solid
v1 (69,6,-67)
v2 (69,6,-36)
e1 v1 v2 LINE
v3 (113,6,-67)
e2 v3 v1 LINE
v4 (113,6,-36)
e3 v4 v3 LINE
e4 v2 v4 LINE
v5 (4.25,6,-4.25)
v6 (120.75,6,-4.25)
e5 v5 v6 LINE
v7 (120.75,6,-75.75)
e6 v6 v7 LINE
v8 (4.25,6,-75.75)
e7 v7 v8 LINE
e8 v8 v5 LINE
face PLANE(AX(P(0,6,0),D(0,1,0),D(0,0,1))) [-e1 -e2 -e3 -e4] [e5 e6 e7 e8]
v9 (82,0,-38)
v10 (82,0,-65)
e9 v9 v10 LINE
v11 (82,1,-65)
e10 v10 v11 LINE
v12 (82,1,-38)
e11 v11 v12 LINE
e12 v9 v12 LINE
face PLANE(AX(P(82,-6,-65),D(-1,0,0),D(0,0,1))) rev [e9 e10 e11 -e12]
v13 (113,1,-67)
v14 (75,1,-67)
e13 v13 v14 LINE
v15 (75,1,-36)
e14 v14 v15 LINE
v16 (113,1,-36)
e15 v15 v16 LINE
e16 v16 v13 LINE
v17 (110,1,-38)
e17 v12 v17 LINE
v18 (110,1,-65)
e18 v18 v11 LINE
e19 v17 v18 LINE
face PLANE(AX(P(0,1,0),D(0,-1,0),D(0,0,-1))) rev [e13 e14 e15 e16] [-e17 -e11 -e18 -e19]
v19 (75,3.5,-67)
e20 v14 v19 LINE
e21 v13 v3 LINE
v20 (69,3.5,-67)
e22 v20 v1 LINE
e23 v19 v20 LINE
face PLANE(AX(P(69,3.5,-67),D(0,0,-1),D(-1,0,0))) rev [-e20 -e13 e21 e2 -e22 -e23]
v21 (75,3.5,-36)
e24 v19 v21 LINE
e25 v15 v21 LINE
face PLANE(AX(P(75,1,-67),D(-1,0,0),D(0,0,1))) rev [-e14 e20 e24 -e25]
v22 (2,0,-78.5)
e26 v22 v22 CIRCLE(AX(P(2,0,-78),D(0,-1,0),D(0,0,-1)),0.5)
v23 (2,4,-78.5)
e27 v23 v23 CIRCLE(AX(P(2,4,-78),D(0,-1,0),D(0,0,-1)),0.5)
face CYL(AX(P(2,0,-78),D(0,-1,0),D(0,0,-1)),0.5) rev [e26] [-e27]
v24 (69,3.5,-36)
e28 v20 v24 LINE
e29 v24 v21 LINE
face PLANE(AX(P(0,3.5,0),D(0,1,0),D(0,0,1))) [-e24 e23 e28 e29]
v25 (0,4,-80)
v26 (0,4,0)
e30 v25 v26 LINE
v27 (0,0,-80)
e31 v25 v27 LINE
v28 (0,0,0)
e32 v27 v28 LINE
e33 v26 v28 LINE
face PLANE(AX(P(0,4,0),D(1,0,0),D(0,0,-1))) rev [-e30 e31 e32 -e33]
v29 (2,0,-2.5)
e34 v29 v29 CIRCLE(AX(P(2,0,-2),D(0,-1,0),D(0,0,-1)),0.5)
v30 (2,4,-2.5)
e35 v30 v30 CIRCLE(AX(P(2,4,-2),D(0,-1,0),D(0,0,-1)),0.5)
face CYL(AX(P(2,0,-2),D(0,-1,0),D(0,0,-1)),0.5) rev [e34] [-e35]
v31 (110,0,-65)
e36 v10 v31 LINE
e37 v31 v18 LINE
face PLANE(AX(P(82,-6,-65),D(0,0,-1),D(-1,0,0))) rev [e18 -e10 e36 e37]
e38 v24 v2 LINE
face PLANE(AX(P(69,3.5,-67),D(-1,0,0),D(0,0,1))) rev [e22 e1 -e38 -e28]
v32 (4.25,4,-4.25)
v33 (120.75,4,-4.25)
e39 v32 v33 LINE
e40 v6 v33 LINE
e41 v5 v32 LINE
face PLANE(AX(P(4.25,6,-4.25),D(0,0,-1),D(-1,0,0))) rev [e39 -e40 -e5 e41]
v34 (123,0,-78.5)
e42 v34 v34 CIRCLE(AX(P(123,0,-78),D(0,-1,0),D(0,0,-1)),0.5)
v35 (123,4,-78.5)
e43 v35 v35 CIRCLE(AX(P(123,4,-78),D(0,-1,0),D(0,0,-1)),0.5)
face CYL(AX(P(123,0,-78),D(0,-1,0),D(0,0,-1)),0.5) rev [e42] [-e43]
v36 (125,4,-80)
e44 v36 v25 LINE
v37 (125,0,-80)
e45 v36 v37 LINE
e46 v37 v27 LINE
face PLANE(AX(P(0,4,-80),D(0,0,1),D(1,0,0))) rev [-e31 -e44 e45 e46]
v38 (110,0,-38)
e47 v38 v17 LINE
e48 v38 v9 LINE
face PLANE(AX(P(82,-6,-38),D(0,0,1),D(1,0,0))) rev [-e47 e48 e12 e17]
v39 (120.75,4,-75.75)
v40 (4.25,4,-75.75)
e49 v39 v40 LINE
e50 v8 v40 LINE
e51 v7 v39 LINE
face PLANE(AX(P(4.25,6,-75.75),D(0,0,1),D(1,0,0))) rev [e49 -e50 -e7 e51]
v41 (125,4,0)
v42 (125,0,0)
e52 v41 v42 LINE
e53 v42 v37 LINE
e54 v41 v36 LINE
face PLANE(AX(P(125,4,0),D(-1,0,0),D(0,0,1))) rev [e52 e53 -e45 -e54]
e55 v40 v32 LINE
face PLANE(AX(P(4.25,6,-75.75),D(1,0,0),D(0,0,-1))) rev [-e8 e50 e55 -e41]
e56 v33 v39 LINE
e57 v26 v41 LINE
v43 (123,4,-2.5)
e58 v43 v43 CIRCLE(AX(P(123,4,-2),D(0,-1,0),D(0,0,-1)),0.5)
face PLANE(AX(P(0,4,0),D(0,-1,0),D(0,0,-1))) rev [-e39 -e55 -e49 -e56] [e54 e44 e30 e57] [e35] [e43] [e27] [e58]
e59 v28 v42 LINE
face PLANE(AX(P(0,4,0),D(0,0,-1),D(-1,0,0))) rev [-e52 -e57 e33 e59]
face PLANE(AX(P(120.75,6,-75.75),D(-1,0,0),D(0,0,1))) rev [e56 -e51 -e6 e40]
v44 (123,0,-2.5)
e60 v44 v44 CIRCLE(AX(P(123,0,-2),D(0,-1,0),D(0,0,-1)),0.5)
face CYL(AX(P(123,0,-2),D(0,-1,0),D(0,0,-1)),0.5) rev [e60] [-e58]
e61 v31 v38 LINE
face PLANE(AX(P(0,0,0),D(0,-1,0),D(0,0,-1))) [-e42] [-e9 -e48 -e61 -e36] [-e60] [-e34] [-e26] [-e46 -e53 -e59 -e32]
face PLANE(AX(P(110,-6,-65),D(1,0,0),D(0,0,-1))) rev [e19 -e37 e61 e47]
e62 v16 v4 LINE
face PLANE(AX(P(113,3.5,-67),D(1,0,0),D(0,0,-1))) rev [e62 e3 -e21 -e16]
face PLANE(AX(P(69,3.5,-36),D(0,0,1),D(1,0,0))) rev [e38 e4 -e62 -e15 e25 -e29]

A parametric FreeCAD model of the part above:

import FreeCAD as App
import Part
import Sketcher

V = App.Vector
Q = App.Units.Quantity


def add_polygon(sketch, points):
    """Adds a closed chain of lines whose ends are joined by coincident constraints."""
    first, n = sketch.GeometryCount, len(points)
    for a, b in zip(points, points[1:] + points[:1]):
        sketch.addGeometry(Part.LineSegment(App.Vector(*a, 0), App.Vector(*b, 0)), False)
    for i in range(n):
        sketch.addConstraint(Sketcher.Constraint("Coincident", first + i, 2, first + (i + 1) % n, 1))

doc = App.newDocument("Part")
body = doc.addObject("PartDesign::Body", "Body")

sketch1 = doc.addObject("Sketcher::SketchObject", "Sketch")
body.addObject(sketch1)
sketch1.AttachmentSupport = (doc.XZ_Plane, [""])
sketch1.MapMode = "FlatFace"
add_polygon(sketch1, [(0, -80), (0, 0), (125, 0), (125, -80)])
sketch1.addConstraint(Sketcher.Constraint("Vertical", 0))
sketch1.addConstraint(Sketcher.Constraint("Horizontal", 1))
sketch1.addConstraint(Sketcher.Constraint("Vertical", 2))
sketch1.addConstraint(Sketcher.Constraint("Horizontal", 3))
sketch1.addConstraint(Sketcher.Constraint("Coincident", 0, 2, -1, 1))
sketch1.addConstraint(Sketcher.Constraint("DistanceX", 1, 1, 1, 2, Q("125 mm")))
sketch1.addConstraint(Sketcher.Constraint("DistanceY", 0, 1, 0, 2, Q("80 mm")))
pad1 = doc.addObject("PartDesign::Pad", "Pad")
body.addObject(pad1)
pad1.Profile = sketch1
pad1.Length = 4
pad1.Reversed = True

sketch2 = doc.addObject("Sketcher::SketchObject", "Sketch001")
body.addObject(sketch2)
sketch2.AttachmentSupport = (doc.XZ_Plane, [""])
sketch2.MapMode = "FlatFace"
sketch2.AttachmentOffset = App.Placement(V(0, 0, -4), App.Rotation())
add_polygon(sketch2, [(4.25, -75.75), (4.25, -4.25), (120.75, -4.25), (120.75, -75.75)])
sketch2.addConstraint(Sketcher.Constraint("Vertical", 0))
sketch2.addConstraint(Sketcher.Constraint("Horizontal", 1))
sketch2.addConstraint(Sketcher.Constraint("Vertical", 2))
sketch2.addConstraint(Sketcher.Constraint("Horizontal", 3))
sketch2.addConstraint(Sketcher.Constraint("DistanceX", 1, 1, 1, 2, Q("116.5 mm")))
sketch2.addConstraint(Sketcher.Constraint("DistanceY", 0, 1, 0, 2, Q("71.5 mm")))
sketch2.addConstraint(Sketcher.Constraint("DistanceX", -1, 1, 0, 2, Q("4.25 mm")))
sketch2.addConstraint(Sketcher.Constraint("DistanceY", 0, 2, -1, 1, Q("4.25 mm")))
pad2 = doc.addObject("PartDesign::Pad", "Pad001")
body.addObject(pad2)
pad2.Profile = sketch2
pad2.Length = 2
pad2.Reversed = True

sketch3 = doc.addObject("Sketcher::SketchObject", "Sketch002")
body.addObject(sketch3)
sketch3.AttachmentSupport = (doc.XZ_Plane, [""])
sketch3.MapMode = "FlatFace"
sketch3.AttachmentOffset = App.Placement(V(0, 0, -6), App.Rotation())
add_polygon(sketch3, [(82, -65), (82, -38), (110, -38), (110, -65)])
sketch3.addConstraint(Sketcher.Constraint("Vertical", 0))
sketch3.addConstraint(Sketcher.Constraint("Horizontal", 1))
sketch3.addConstraint(Sketcher.Constraint("Vertical", 2))
sketch3.addConstraint(Sketcher.Constraint("Horizontal", 3))
sketch3.addConstraint(Sketcher.Constraint("DistanceX", 1, 1, 1, 2, Q("28 mm")))
sketch3.addConstraint(Sketcher.Constraint("DistanceY", 0, 1, 0, 2, Q("27 mm")))
sketch3.addConstraint(Sketcher.Constraint("DistanceX", -1, 1, 0, 2, Q("82 mm")))
sketch3.addConstraint(Sketcher.Constraint("DistanceY", 0, 2, -1, 1, Q("38 mm")))
pocket1 = doc.addObject("PartDesign::Pocket", "Pocket")
body.addObject(pocket1)
pocket1.Profile = sketch3
pocket1.Length = 12
pocket1.Reversed = True

sketch4 = doc.addObject("Sketcher::SketchObject", "Sketch003")
body.addObject(sketch4)
sketch4.AttachmentSupport = (doc.XZ_Plane, [""])
sketch4.MapMode = "FlatFace"
sketch4.AttachmentOffset = App.Placement(V(0, 0, -6), App.Rotation())
add_polygon(sketch4, [(69, -67), (69, -36), (113, -36), (113, -67)])
sketch4.addConstraint(Sketcher.Constraint("Vertical", 0))
sketch4.addConstraint(Sketcher.Constraint("Horizontal", 1))
sketch4.addConstraint(Sketcher.Constraint("Vertical", 2))
sketch4.addConstraint(Sketcher.Constraint("Horizontal", 3))
sketch4.addConstraint(Sketcher.Constraint("DistanceX", 1, 1, 1, 2, Q("44 mm")))
sketch4.addConstraint(Sketcher.Constraint("DistanceY", 0, 1, 0, 2, Q("31 mm")))
sketch4.addConstraint(Sketcher.Constraint("DistanceX", -1, 1, 0, 2, Q("69 mm")))
sketch4.addConstraint(Sketcher.Constraint("DistanceY", 0, 2, -1, 1, Q("36 mm")))
pocket2 = doc.addObject("PartDesign::Pocket", "Pocket001")
body.addObject(pocket2)
pocket2.Profile = sketch4
pocket2.Length = 2.5
pocket2.Reversed = True

sketch5 = doc.addObject("Sketcher::SketchObject", "Sketch004")
body.addObject(sketch5)
sketch5.AttachmentSupport = (doc.XZ_Plane, [""])
sketch5.MapMode = "FlatFace"
sketch5.AttachmentOffset = App.Placement(V(0, 0, -6), App.Rotation())
add_polygon(sketch5, [(75, -67), (75, -36), (113, -36), (113, -67)])
sketch5.addConstraint(Sketcher.Constraint("Vertical", 0))
sketch5.addConstraint(Sketcher.Constraint("Horizontal", 1))
sketch5.addConstraint(Sketcher.Constraint("Vertical", 2))
sketch5.addConstraint(Sketcher.Constraint("Horizontal", 3))
sketch5.addConstraint(Sketcher.Constraint("DistanceX", 1, 1, 1, 2, Q("38 mm")))
sketch5.addConstraint(Sketcher.Constraint("DistanceY", 0, 1, 0, 2, Q("31 mm")))
sketch5.addConstraint(Sketcher.Constraint("DistanceX", -1, 1, 0, 2, Q("75 mm")))
sketch5.addConstraint(Sketcher.Constraint("DistanceY", 0, 2, -1, 1, Q("36 mm")))
pocket3 = doc.addObject("PartDesign::Pocket", "Pocket002")
body.addObject(pocket3)
pocket3.Profile = sketch5
pocket3.Length = 5
pocket3.Reversed = True

sketch6 = doc.addObject("Sketcher::SketchObject", "Sketch005")
body.addObject(sketch6)
sketch6.AttachmentSupport = (doc.XZ_Plane, [""])
sketch6.MapMode = "FlatFace"
sketch6.addGeometry(Part.Circle(V(123, -78, 0), V(0, 0, 1), 0.5), False)
sketch6.addGeometry(Part.Circle(V(123, -2, 0), V(0, 0, 1), 0.5), False)
sketch6.addGeometry(Part.Circle(V(2, -2, 0), V(0, 0, 1), 0.5), False)
sketch6.addGeometry(Part.Circle(V(2, -78, 0), V(0, 0, 1), 0.5), False)
sketch6.addConstraint(Sketcher.Constraint("Equal", 0, 1))
sketch6.addConstraint(Sketcher.Constraint("Equal", 1, 2))
sketch6.addConstraint(Sketcher.Constraint("Equal", 2, 3))
sketch6.addConstraint(Sketcher.Constraint("Horizontal", 1, 3, 2, 3))
sketch6.addConstraint(Sketcher.Constraint("Horizontal", 0, 3, 3, 3))
sketch6.addConstraint(Sketcher.Constraint("Vertical", 0, 3, 1, 3))
sketch6.addConstraint(Sketcher.Constraint("Vertical", 2, 3, 3, 3))
sketch6.addConstraint(Sketcher.Constraint("Diameter", 0, Q("1 mm")))
sketch6.addConstraint(Sketcher.Constraint("DistanceX", -1, 1, 0, 3, Q("123 mm")))
sketch6.addConstraint(Sketcher.Constraint("DistanceY", 0, 3, -1, 1, Q("78 mm")))
sketch6.addConstraint(Sketcher.Constraint("DistanceY", 1, 3, -1, 1, Q("2 mm")))
sketch6.addConstraint(Sketcher.Constraint("DistanceX", -1, 1, 2, 3, Q("2 mm")))
doc.recompute()
hole = doc.addObject("PartDesign::Hole", "Hole")
body.addObject(hole)
hole.Profile = sketch6
hole.ThreadType = "None"
hole.Diameter = 1
hole.DepthType = "ThroughAll"

doc.recompute()
